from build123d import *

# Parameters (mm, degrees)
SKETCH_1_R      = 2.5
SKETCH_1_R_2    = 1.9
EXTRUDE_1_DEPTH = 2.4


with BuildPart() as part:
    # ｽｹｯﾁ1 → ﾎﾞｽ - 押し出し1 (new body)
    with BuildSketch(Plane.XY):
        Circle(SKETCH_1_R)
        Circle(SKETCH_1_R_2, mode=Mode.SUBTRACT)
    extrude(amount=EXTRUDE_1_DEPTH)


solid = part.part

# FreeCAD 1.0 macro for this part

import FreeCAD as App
import Part
import Sketcher

V = App.Vector
Q = App.Units.Quantity

doc = App.newDocument("Part")
body = doc.addObject("PartDesign::Body", "Body")

# Sketch on XY plane
sketch1 = body.newObject("Sketcher::SketchObject", "Sketch")
sketch1.AttachmentSupport = (doc.getObject("XY_Plane"), [""])
sketch1.MapMode = "FlatFace"
sketch1.addGeometry([
    Part.Circle(V(0, 0, 0), V(0, 0, 1), 2.5),
    Part.Circle(V(0, 0, 0), V(0, 0, 1), 1.9),
], False)
sketch1.addConstraint([
    Sketcher.Constraint("Coincident", 0, 3, -1, 1),
    Sketcher.Constraint("Coincident", 1, 3, -1, 1),
    Sketcher.Constraint("Diameter", 0, Q("5 mm")),
    Sketcher.Constraint("Diameter", 1, Q("3.8 mm")),
])
pad1 = body.newObject("PartDesign::Pad", "Pad")
pad1.Profile = sketch1
pad1.Length = 2.4

doc.recompute()
